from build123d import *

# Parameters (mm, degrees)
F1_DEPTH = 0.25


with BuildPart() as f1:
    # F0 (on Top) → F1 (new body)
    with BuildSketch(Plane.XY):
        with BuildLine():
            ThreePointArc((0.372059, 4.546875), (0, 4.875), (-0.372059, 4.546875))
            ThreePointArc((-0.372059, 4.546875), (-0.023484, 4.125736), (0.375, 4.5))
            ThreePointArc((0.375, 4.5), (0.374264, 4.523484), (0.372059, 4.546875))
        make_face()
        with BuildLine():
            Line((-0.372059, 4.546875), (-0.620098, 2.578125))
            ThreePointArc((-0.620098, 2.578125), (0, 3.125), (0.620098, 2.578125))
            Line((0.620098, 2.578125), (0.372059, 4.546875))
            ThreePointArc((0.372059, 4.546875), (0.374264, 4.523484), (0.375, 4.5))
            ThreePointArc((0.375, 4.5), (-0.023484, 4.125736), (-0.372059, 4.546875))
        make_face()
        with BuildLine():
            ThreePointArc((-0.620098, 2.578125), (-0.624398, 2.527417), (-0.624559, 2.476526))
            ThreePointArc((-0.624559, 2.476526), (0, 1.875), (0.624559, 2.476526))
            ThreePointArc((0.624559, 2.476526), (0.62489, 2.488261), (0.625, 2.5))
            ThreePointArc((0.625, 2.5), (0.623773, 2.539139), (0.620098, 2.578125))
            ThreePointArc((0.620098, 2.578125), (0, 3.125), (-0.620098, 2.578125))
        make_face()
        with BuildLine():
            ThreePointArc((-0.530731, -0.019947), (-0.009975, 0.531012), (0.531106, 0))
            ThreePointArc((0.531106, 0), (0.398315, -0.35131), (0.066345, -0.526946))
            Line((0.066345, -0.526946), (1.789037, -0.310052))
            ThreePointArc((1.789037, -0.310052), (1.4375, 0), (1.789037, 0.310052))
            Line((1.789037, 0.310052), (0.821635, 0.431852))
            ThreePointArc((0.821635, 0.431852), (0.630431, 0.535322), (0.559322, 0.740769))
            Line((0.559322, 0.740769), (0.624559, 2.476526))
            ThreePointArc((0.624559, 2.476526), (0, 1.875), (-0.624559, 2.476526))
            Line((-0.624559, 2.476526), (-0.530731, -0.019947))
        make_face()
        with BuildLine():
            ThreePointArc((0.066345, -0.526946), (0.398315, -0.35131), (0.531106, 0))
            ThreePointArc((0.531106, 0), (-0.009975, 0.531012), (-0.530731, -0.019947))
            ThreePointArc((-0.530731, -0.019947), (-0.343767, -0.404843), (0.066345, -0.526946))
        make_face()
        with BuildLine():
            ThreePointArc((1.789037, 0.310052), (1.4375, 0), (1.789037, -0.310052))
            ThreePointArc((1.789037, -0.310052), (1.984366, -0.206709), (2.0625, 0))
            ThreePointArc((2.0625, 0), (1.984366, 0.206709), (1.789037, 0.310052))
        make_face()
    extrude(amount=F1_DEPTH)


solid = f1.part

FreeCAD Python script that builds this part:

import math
import FreeCAD as App
import Part
import Sketcher
from FreeCAD import Vector

doc = App.newDocument("Part")
body = doc.addObject("PartDesign::Body", "Body")

# Sketch on XY plane
sketch1 = doc.addObject("Sketcher::SketchObject", "Sketch")
body.addObject(sketch1)
sketch1.AttachmentSupport = (doc.XY_Plane, [""])
sketch1.MapMode = "FlatFace"
sketch1.addGeometry([
    Part.ArcOfCircle(Part.Circle(Vector(0, 4.5, 0), Vector(0, 0, 1), 0.375), math.radians(7), math.radians(173)),  # 0
    Part.LineSegment(Vector(-0.372, 4.547, 0), Vector(-0.62, 2.578, 0)),  # 1
    Part.ArcOfCircle(Part.Circle(Vector(0, 2.5, 0), Vector(0, 0, 1), 0.625), math.radians(172.82), math.radians(182.15)),  # 2
    Part.LineSegment(Vector(-0.625, 2.477, 0), Vector(-0.531, -0.02, 0)),  # 3
    Part.ArcOfCircle(Part.Circle(Vector(0, 0, 0), Vector(0, 0, 1), 0.531), math.radians(-178), math.radians(-83)),  # 4
    Part.LineSegment(Vector(0.066, -0.527, 0), Vector(1.789, -0.31, 0)),  # 5
    Part.ArcOfCircle(Part.Circle(Vector(1.75, 0, 0), Vector(0, 0, 1), 0.313), math.radians(-83), math.radians(0)),  # 6
    Part.ArcOfCircle(Part.Circle(Vector(1.75, 0, 0), Vector(0, 0, 1), 0.313), math.radians(0), math.radians(83)),  # 7
    Part.LineSegment(Vector(1.789, 0.31, 0), Vector(0.822, 0.432, 0)),  # 8
    Part.ArcOfCircle(Part.Circle(Vector(0.859, 0.73, 0), Vector(0, 0, 1), 0.3), math.radians(178), math.radians(263)),  # 9
    Part.LineSegment(Vector(0.559, 0.741, 0), Vector(0.625, 2.477, 0)),  # 10
    Part.ArcOfCircle(Part.Circle(Vector(0.001, 2.5, 0), Vector(0, 0, 1), 0.624), math.radians(-2.16), math.radians(0)),  # 11
    Part.ArcOfCircle(Part.Circle(Vector(0, 2.5, 0), Vector(0, 0, 1), 0.625), math.radians(0), math.radians(7.18)),  # 12
    Part.LineSegment(Vector(0.62, 2.578, 0), Vector(0.372, 4.547, 0)),  # 13
], False)
sketch1.addConstraint([
    Sketcher.Constraint("Tangent", 0, 2, 1, 1),
    Sketcher.Constraint("Coincident", 1, 2, 2, 1),
    Sketcher.Constraint("Coincident", 2, 2, 3, 1),
    Sketcher.Constraint("Tangent", 3, 2, 4, 1),
    Sketcher.Constraint("Tangent", 4, 2, 5, 1),
    Sketcher.Constraint("Coincident", 5, 2, 6, 1),
    Sketcher.Constraint("Coincident", 6, 2, 7, 1),
    Sketcher.Constraint("Coincident", 7, 2, 8, 1),
    Sketcher.Constraint("Coincident", 8, 2, 9, 2),
    Sketcher.Constraint("Tangent", 9, 1, 10, 1),
    Sketcher.Constraint("Coincident", 10, 2, 11, 1),
    Sketcher.Constraint("Coincident", 11, 2, 12, 1),
    Sketcher.Constraint("Coincident", 12, 2, 13, 1),
    Sketcher.Constraint("Tangent", 13, 2, 0, 1),
    Sketcher.Constraint("Coincident", 4, 3, -1, 1),
    Sketcher.Constraint("Coincident", 7, 3, 6, 3),
    Sketcher.Constraint("Symmetric", 2, 2, 10, 2, -2),
    Sketcher.Constraint("Symmetric", 1, 2, 12, 2, -2),
    Sketcher.Constraint("Symmetric", 5, 2, 7, 2, -1),
    Sketcher.Constraint("PointOnObject", 0, 3, -2),
    Sketcher.Constraint("PointOnObject", 6, 2, -1),
    Sketcher.Constraint("Radius", 9, 0.299999),
    Sketcher.Constraint("Radius", 0, 0.375),
    Sketcher.Constraint("DistanceY", -1, 1, 0, 3, 4.5),
    Sketcher.Constraint("DistanceY", -1, 1, 11, 2, 2.5),
    Sketcher.Constraint("Radius", 6, 0.312501),
    Sketcher.Constraint("DistanceX", -1, 1, 6, 3, 1.749999),
    Sketcher.Constraint("Radius", 2, 0.625109),
    Sketcher.Constraint("Radius", 11, 0.623509),
    Sketcher.Constraint("DistanceX", -1, 1, 11, 2, 0.625),
    Sketcher.Constraint("Radius", 4, 0.531106),
    Sketcher.Constraint("Radius", 12, 0.625165),
    Sketcher.Constraint("DistanceX", 2, 3, 9, 3, 0.859),
    Sketcher.Constraint("DistanceY", 4, 2, 3, 2, 0.506999),
    Sketcher.Constraint("DistanceY", -1, 1, 9, 3, 0.729501),
    Sketcher.Constraint("DistanceX", 1, 2, -1, 1, 0.620098),
    Sketcher.Constraint("DistanceY", 2, 2, 1, 2, 0.101599),
    Sketcher.Constraint("DistanceX", 2, 2, 0, 2, 0.2525),
    Sketcher.Constraint("DistanceX", 8, 2, 7, 2, 0.967402),
    Sketcher.Constraint("DistanceY", -1, 1, 7, 2, 0.310052),
])
pad1 = doc.addObject("PartDesign::Pad", "Pad")
body.addObject(pad1)
pad1.Profile = sketch1
pad1.Length = 0.25

doc.recompute()
